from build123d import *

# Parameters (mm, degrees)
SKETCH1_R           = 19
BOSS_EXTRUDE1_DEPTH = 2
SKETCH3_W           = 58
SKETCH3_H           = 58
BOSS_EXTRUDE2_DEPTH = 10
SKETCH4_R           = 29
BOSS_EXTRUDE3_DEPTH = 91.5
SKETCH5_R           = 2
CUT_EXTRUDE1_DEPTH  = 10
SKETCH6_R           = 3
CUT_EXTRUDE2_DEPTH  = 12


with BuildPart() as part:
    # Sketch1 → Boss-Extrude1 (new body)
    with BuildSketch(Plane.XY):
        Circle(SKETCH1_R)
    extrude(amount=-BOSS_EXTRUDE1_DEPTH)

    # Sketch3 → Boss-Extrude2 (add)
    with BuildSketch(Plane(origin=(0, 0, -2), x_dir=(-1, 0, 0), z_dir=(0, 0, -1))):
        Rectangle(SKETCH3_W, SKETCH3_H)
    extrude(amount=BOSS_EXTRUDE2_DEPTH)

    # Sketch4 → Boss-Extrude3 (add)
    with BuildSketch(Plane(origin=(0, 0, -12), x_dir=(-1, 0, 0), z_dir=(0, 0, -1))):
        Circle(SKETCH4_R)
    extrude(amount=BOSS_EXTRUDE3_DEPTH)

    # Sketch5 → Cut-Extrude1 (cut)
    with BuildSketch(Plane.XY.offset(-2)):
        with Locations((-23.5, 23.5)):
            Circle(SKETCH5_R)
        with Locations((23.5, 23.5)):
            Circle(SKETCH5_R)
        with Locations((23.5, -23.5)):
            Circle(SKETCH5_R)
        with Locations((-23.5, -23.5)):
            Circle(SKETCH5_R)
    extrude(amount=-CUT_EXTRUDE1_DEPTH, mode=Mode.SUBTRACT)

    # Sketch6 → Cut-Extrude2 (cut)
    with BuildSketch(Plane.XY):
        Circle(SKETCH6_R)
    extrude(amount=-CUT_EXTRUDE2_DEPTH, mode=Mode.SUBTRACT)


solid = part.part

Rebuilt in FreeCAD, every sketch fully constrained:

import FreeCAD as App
import Part
import Sketcher


def add_polygon(sketch, points):
    """Adds a closed chain of lines whose ends are joined by coincident constraints."""
    first, n = sketch.GeometryCount, len(points)
    for a, b in zip(points, points[1:] + points[:1]):
        sketch.addGeometry(Part.LineSegment(App.Vector(*a, 0), App.Vector(*b, 0)), False)
    for i in range(n):
        sketch.addConstraint(Sketcher.Constraint("Coincident", first + i, 2, first + (i + 1) % n, 1))

doc = App.newDocument("Part")
body = doc.addObject("PartDesign::Body", "Body")

sketch1 = body.newObject("Sketcher::SketchObject", "Sketch")
sketch1.AttachmentSupport = (doc.getObject("XY_Plane"), [""])
sketch1.MapMode = "FlatFace"
sketch1.addGeometry(Part.Circle(App.Vector(0, 0, 0), App.Vector(0, 0, 1), 19), False)
sketch1.addConstraint([
    Sketcher.Constraint("Coincident", 0, 3, -1, 1),
    Sketcher.Constraint("Diameter", 0, 38.0),
])
pad1 = body.newObject("PartDesign::Pad", "Pad")
pad1.Profile = sketch1
pad1.Length = 2
pad1.Reversed = True

sketch2 = body.newObject("Sketcher::SketchObject", "Sketch001")
sketch2.AttachmentSupport = (doc.getObject("XY_Plane"), [""])
sketch2.MapMode = "FlatFace"
sketch2.AttachmentOffset = App.Placement(App.Vector(0, 0, -2), App.Rotation())
add_polygon(sketch2, [(29, 29), (29, -29), (-29, -29), (-29, 29)])
sketch2.addConstraint([
    Sketcher.Constraint("Vertical", 0),
    Sketcher.Constraint("Horizontal", 1),
    Sketcher.Constraint("Vertical", 2),
    Sketcher.Constraint("Horizontal", 3),
    Sketcher.Constraint("Symmetric", 0, 2, 2, 2, -1, 1),
    Sketcher.Constraint("Equal", 3, 0),
    Sketcher.Constraint("DistanceX", 1, 2, 1, 1, 58.0),
])
pad2 = body.newObject("PartDesign::Pad", "Pad001")
pad2.Profile = sketch2
pad2.Length = 10
pad2.Reversed = True

sketch3 = body.newObject("Sketcher::SketchObject", "Sketch002")
sketch3.AttachmentSupport = (doc.getObject("XY_Plane"), [""])
sketch3.MapMode = "FlatFace"
sketch3.AttachmentOffset = App.Placement(App.Vector(0, 0, -12), App.Rotation())
sketch3.addGeometry(Part.Circle(App.Vector(0, 0, 0), App.Vector(0, 0, 1), 29), False)
sketch3.addConstraint([
    Sketcher.Constraint("Coincident", 0, 3, -1, 1),
    Sketcher.Constraint("Diameter", 0, 58.0),
])
pad3 = body.newObject("PartDesign::Pad", "Pad002")
pad3.Profile = sketch3
pad3.Length = 91.5
pad3.Reversed = True

sketch4 = body.newObject("Sketcher::SketchObject", "Sketch003")
sketch4.AttachmentSupport = (doc.getObject("XY_Plane"), [""])
sketch4.MapMode = "FlatFace"
sketch4.AttachmentOffset = App.Placement(App.Vector(0, 0, -2), App.Rotation())
sketch4.addGeometry([
    Part.Circle(App.Vector(-23.5, 23.5, 0), App.Vector(0, 0, 1), 2),
    Part.Circle(App.Vector(23.5, 23.5, 0), App.Vector(0, 0, 1), 2),
    Part.Circle(App.Vector(23.5, -23.5, 0), App.Vector(0, 0, 1), 2),
    Part.Circle(App.Vector(-23.5, -23.5, 0), App.Vector(0, 0, 1), 2),
], False)
sketch4.addConstraint([
    Sketcher.Constraint("Equal", 0, 1),
    Sketcher.Constraint("Equal", 1, 2),
    Sketcher.Constraint("Equal", 2, 3),
    Sketcher.Constraint("Symmetric", 0, 3, 2, 3, -1, 1),
    Sketcher.Constraint("Symmetric", 1, 3, 3, 3, -1, 1),
    Sketcher.Constraint("Symmetric", 0, 3, 1, 3, -2),
    Sketcher.Constraint("Diameter", 0, 4.0),
    Sketcher.Constraint("DistanceX", 0, 3, 1, 3, 47.0),
    Sketcher.Constraint("DistanceY", 2, 3, 1, 3, 47.0),
])
pocket1 = body.newObject("PartDesign::Pocket", "Pocket")
pocket1.Profile = sketch4
pocket1.Length = 10

sketch5 = body.newObject("Sketcher::SketchObject", "Sketch004")
sketch5.AttachmentSupport = (doc.getObject("XY_Plane"), [""])
sketch5.MapMode = "FlatFace"
sketch5.addGeometry(Part.Circle(App.Vector(0, 0, 0), App.Vector(0, 0, 1), 3), False)
sketch5.addConstraint([
    Sketcher.Constraint("Coincident", 0, 3, -1, 1),
    Sketcher.Constraint("Diameter", 0, 6.0),
])
pocket2 = body.newObject("PartDesign::Pocket", "Pocket001")
pocket2.Profile = sketch5
pocket2.Length = 12

doc.recompute()
